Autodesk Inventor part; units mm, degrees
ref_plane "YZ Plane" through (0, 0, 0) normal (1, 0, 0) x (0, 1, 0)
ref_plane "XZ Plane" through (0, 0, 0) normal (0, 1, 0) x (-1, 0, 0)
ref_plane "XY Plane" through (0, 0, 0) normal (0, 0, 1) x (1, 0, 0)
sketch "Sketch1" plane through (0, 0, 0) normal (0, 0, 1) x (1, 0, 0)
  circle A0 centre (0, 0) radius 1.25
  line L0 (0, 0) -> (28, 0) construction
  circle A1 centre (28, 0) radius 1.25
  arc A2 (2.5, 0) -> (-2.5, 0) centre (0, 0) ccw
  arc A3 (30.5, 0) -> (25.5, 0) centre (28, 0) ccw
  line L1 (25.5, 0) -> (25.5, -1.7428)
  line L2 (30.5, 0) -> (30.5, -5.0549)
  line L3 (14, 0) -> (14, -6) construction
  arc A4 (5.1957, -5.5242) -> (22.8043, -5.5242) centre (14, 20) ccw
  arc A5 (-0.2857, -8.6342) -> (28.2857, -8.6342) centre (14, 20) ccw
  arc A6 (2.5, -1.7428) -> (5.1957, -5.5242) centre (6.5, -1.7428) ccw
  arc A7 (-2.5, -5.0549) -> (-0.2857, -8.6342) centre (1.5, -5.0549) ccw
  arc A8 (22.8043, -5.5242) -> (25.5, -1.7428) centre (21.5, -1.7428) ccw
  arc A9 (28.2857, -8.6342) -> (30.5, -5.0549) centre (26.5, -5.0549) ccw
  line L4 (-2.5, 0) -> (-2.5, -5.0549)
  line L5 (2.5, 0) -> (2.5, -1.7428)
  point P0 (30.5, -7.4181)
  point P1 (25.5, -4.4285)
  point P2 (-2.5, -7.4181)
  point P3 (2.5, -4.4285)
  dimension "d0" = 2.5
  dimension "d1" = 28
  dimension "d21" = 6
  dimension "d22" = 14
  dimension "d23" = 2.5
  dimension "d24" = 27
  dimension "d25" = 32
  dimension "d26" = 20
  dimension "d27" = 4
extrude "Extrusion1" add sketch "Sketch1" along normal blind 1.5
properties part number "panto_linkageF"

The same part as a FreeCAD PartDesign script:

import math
import FreeCAD as App
import Part
import Sketcher

V = App.Vector

doc = App.newDocument("Part")
body = doc.addObject("PartDesign::Body", "Body")

# Sketch on XY plane
sketch1 = doc.addObject("Sketcher::SketchObject", "Sketch")
body.addObject(sketch1)
sketch1.AttachmentSupport = (doc.XY_Plane, [""])
sketch1.MapMode = "FlatFace"
sketch1.addGeometry(Part.LineSegment(V(2.5, -1.7, 0), V(2.5, 0, 0)), False)
sketch1.addGeometry(Part.ArcOfCircle(Part.Circle(V(0, 0, 0), V(0, 0, 1), 2.5), math.radians(0), math.radians(180)), False)
sketch1.addGeometry(Part.LineSegment(V(-2.5, 0, 0), V(-2.5, -5.1, 0)), False)
sketch1.addGeometry(Part.ArcOfCircle(Part.Circle(V(1.5, -5.1, 0), V(0, 0, 1), 4), math.radians(180), math.radians(243)), False)
sketch1.addGeometry(Part.ArcOfCircle(Part.Circle(V(14, 20, 0), V(0, 0, 1), 32), math.radians(-117), math.radians(-63)), False)
sketch1.addGeometry(Part.ArcOfCircle(Part.Circle(V(26.5, -5.1, 0), V(0, 0, 1), 4), math.radians(-63), math.radians(0)), False)
sketch1.addGeometry(Part.LineSegment(V(30.5, -5.1, 0), V(30.5, 0, 0)), False)
sketch1.addGeometry(Part.ArcOfCircle(Part.Circle(V(28, 0, 0), V(0, 0, 1), 2.5), math.radians(0), math.radians(180)), False)
sketch1.addGeometry(Part.LineSegment(V(25.5, 0, 0), V(25.5, -1.7, 0)), False)
sketch1.addGeometry(Part.ArcOfCircle(Part.Circle(V(21.5, -1.7, 0), V(0, 0, 1), 4), math.radians(-71), math.radians(0)), False)
sketch1.addGeometry(Part.ArcOfCircle(Part.Circle(V(14, 20, 0), V(0, 0, 1), 27), math.radians(-109), math.radians(-71)), False)
sketch1.addGeometry(Part.ArcOfCircle(Part.Circle(V(6.5, -1.7, 0), V(0, 0, 1), 4), math.radians(180), math.radians(251)), False)
sketch1.addGeometry(Part.Circle(V(0, 0, 0), V(0, 0, 1), 1.2), False)
sketch1.addGeometry(Part.Circle(V(28, 0, 0), V(0, 0, 1), 1.2), False)
sketch1.addConstraint(Sketcher.Constraint("Tangent", 0, 2, 1, 1))
sketch1.addConstraint(Sketcher.Constraint("Tangent", 1, 2, 2, 1))
sketch1.addConstraint(Sketcher.Constraint("Tangent", 2, 2, 3, 1))
sketch1.addConstraint(Sketcher.Constraint("Tangent", 3, 2, 4, 1))
sketch1.addConstraint(Sketcher.Constraint("Tangent", 4, 2, 5, 1))
sketch1.addConstraint(Sketcher.Constraint("Tangent", 5, 2, 6, 1))
sketch1.addConstraint(Sketcher.Constraint("Tangent", 6, 2, 7, 1))
sketch1.addConstraint(Sketcher.Constraint("Tangent", 7, 2, 8, 1))
sketch1.addConstraint(Sketcher.Constraint("Tangent", 8, 2, 9, 2))
sketch1.addConstraint(Sketcher.Constraint("Tangent", 9, 1, 10, 2))
sketch1.addConstraint(Sketcher.Constraint("Tangent", 10, 1, 11, 2))
sketch1.addConstraint(Sketcher.Constraint("Tangent", 11, 1, 0, 1))
sketch1.addConstraint(Sketcher.Constraint("Vertical", 0))
sketch1.addConstraint(Sketcher.Constraint("Vertical", 2))
sketch1.addConstraint(Sketcher.Constraint("Vertical", 6))
sketch1.addConstraint(Sketcher.Constraint("Vertical", 8))
sketch1.addConstraint(Sketcher.Constraint("Coincident", 1, 3, -1, 1))
sketch1.addConstraint(Sketcher.Constraint("Coincident", 12, 3, -1, 1))
sketch1.addConstraint(Sketcher.Constraint("Coincident", 10, 3, 4, 3))
sketch1.addConstraint(Sketcher.Constraint("Coincident", 13, 3, 7, 3))
sketch1.addConstraint(Sketcher.Constraint("Equal", 3, 5))
sketch1.addConstraint(Sketcher.Constraint("Equal", 1, 7))
sketch1.addConstraint(Sketcher.Constraint("Equal", 5, 9))
sketch1.addConstraint(Sketcher.Constraint("Equal", 9, 11))
sketch1.addConstraint(Sketcher.Constraint("Equal", 12, 13))
sketch1.addConstraint(Sketcher.Constraint("PointOnObject", 7, 3, -1))
sketch1.addConstraint(Sketcher.Constraint("Horizontal", 3, 3, 5, 3))
sketch1.addConstraint(Sketcher.Constraint("Radius", 3, 4.0))
sketch1.addConstraint(Sketcher.Constraint("Radius", 4, 32.0))
sketch1.addConstraint(Sketcher.Constraint("Radius", 10, 27.0))
sketch1.addConstraint(Sketcher.Constraint("Diameter", 12, 2.5))
sketch1.addConstraint(Sketcher.Constraint("Radius", 1, 2.5))
sketch1.addConstraint(Sketcher.Constraint("DistanceX", -1, 1, 4, 3, 14.0))
sketch1.addConstraint(Sketcher.Constraint("DistanceY", -1, 1, 4, 3, 20.0))
pad1 = doc.addObject("PartDesign::Pad", "Pad")
body.addObject(pad1)
pad1.Profile = sketch1
pad1.Length = 1.5

doc.recompute()
